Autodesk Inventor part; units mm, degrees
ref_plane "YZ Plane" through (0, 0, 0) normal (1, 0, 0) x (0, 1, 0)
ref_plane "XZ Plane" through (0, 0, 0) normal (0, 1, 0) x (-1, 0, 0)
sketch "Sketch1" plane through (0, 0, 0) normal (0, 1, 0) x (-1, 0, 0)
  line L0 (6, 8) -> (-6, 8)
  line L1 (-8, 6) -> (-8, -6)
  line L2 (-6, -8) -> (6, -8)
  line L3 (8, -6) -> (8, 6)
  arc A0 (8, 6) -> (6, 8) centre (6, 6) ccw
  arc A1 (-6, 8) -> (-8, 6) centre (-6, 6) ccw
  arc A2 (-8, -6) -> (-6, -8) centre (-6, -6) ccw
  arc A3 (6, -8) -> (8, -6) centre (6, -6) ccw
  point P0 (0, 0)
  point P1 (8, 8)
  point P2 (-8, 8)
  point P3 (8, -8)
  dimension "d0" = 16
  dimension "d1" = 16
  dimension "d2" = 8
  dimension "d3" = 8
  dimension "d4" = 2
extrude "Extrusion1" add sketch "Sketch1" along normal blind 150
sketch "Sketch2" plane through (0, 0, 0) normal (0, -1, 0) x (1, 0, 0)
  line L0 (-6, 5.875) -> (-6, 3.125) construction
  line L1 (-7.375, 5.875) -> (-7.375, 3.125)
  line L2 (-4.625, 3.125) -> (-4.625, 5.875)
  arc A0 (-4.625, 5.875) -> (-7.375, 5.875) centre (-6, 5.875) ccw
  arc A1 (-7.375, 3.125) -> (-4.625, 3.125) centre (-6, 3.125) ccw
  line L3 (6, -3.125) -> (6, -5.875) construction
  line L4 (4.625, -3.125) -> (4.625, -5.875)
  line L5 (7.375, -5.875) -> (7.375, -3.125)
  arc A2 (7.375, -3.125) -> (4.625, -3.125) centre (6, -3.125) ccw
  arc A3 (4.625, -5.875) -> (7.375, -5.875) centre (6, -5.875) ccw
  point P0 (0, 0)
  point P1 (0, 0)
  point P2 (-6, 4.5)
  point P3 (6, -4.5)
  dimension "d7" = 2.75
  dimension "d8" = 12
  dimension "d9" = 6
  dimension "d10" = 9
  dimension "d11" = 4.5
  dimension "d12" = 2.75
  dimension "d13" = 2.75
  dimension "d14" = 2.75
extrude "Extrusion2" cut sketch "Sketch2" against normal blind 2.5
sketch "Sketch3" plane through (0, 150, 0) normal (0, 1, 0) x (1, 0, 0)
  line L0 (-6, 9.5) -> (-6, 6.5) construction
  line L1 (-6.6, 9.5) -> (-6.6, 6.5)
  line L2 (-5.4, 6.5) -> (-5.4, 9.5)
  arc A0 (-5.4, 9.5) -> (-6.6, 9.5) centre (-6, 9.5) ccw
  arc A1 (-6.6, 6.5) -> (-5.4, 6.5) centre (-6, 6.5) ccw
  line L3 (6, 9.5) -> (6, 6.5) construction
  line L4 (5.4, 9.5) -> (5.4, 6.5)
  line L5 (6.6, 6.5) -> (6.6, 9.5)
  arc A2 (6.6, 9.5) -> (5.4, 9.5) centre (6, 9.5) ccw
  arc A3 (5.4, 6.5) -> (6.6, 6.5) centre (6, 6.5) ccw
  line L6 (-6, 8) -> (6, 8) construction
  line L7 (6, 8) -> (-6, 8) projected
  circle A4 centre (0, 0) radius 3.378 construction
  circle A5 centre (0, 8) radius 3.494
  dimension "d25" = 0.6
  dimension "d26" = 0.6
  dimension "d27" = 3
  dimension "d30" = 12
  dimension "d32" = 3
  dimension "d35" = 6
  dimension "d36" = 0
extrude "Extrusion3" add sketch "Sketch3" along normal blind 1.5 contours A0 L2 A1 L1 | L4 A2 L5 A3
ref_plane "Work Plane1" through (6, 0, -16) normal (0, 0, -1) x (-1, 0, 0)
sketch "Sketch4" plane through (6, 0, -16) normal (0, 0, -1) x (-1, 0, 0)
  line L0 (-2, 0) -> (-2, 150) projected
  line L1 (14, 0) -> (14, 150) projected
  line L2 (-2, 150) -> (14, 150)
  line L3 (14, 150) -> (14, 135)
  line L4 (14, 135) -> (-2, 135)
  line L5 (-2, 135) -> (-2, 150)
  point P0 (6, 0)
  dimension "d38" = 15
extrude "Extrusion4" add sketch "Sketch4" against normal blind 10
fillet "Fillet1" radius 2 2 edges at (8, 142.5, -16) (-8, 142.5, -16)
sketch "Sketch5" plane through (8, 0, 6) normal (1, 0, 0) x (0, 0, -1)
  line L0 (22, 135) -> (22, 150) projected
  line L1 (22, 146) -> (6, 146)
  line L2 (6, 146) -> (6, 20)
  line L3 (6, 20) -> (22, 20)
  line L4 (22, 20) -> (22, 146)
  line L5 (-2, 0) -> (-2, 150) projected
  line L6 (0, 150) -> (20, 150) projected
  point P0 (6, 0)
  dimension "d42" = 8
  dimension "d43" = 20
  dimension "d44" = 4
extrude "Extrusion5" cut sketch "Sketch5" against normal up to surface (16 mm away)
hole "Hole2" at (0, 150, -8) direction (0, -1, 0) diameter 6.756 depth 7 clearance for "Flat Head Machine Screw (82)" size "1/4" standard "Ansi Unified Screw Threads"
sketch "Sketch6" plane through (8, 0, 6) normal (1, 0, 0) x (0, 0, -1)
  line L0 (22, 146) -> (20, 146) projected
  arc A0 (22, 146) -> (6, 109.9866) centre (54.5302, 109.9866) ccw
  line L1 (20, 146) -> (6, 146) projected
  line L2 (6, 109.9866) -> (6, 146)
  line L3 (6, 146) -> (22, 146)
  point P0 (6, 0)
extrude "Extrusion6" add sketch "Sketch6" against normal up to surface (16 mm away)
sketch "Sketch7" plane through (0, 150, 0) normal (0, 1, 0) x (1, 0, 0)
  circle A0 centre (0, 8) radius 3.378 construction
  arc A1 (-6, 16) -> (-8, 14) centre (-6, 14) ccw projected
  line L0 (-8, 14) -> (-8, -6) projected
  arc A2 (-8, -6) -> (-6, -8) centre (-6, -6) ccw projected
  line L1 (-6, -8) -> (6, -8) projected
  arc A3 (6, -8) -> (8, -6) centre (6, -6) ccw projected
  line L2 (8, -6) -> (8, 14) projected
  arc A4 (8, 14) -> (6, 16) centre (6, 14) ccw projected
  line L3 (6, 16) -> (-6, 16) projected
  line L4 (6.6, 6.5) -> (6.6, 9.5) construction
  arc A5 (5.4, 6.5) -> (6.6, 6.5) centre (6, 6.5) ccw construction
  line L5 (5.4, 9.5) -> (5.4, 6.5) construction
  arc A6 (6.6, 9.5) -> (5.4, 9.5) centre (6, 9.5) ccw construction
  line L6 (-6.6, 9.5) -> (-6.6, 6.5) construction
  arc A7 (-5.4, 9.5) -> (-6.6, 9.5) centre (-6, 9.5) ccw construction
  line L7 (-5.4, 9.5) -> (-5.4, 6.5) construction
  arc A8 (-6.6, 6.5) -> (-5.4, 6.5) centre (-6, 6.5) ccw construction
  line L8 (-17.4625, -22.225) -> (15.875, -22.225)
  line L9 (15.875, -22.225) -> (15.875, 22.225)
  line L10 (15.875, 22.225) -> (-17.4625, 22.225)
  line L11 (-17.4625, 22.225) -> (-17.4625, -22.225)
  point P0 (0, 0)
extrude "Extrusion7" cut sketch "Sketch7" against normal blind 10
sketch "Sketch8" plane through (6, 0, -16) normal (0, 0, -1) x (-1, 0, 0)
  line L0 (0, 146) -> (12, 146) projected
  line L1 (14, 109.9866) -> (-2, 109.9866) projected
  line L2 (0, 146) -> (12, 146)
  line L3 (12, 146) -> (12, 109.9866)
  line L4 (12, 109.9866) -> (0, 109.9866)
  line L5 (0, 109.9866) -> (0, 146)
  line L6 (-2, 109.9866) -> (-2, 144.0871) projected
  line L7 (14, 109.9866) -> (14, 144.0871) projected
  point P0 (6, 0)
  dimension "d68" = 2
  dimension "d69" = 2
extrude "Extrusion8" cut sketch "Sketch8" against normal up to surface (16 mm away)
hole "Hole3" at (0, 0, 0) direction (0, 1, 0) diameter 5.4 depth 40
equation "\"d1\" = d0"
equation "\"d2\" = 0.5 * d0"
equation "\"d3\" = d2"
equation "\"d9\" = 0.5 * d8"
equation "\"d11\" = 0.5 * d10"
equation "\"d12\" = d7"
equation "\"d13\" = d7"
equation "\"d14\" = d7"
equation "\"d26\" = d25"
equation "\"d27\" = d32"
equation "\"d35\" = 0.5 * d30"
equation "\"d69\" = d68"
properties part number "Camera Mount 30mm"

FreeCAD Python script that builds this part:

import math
import FreeCAD as App
import Part
import Sketcher

V = App.Vector


def edges_at(feature, points):
    """Names of the edges that pass closest to the given points."""
    edges = feature.Shape.Edges
    near = lambda p: min(range(len(edges)), key=lambda i: edges[i].distToShape(Part.Vertex(*p))[0])
    return sorted({f"Edge{near(p) + 1}" for p in points})

doc = App.newDocument("Part")
params = doc.addObject("Spreadsheet::Sheet", "Params")
for row, (alias, value) in enumerate([
    ("sketch1_radius", "2 mm"),
    ("pad1_length", "150 mm"),
    ("sketch2_height", "2.75 mm"),
    ("pocket1_length", "2.5 mm"),
    ("sketch3_radius", "0.6 mm"),
    ("sketch3_height", "3 mm"),
    ("pad2_length", "1.5 mm"),
    ("sketch4_height", "15 mm"),
    ("sketch4_width", "16 mm"),
    ("pad3_length", "10 mm"),
    ("fillet_radius", "2 mm"),
    ("sketch5_width", "126 mm"),
    ("sketch5_height", "16 mm"),
    ("pocket2_length", "16 mm"),
    ("hole_diameter", "6.756 mm"),
    ("hole_depth", "7 mm"),
    ("sketch7_height", "16 mm"),
    ("pad4_length", "16 mm"),
    ("sketch8_radius", "2 mm"),
    ("sketch8_width", "12 mm"),
    ("sketch8_height", "20 mm"),
    ("sketch8_height2", "44.45 mm"),
    ("pocket3_length", "10 mm"),
    ("sketch9_width", "12 mm"),
    ("pocket4_length", "16 mm"),
    ("sketch10_diameter", "5.4 mm"),
    ("hole2_diameter", "5.4 mm"),
    ("hole2_depth", "40 mm"),
], start=1):
    params.set(f"A{row}", alias)
    params.set(f"B{row}", "=" + value)
    params.setAlias(f"B{row}", alias)

body = doc.addObject("PartDesign::Body", "Body")

sketch1 = body.newObject("Sketcher::SketchObject", "Sketch")
sketch1.AttachmentSupport = (doc.getObject("XZ_Plane"), [""])
sketch1.MapMode = "FlatFace"
sketch1.addGeometry([
    Part.ArcOfCircle(Part.Circle(V(-6, 6, 0), V(0, 0, 1), 2), math.radians(90), math.radians(180)),
    Part.LineSegment(V(-6, 8, 0), V(6, 8, 0)),
    Part.ArcOfCircle(Part.Circle(V(6, 6, 0), V(0, 0, 1), 2), math.radians(0), math.radians(90)),
    Part.LineSegment(V(8, 6, 0), V(8, -6, 0)),
    Part.ArcOfCircle(Part.Circle(V(6, -6, 0), V(0, 0, 1), 2), math.radians(-90), math.radians(0)),
    Part.LineSegment(V(6, -8, 0), V(-6, -8, 0)),
    Part.ArcOfCircle(Part.Circle(V(-6, -6, 0), V(0, 0, 1), 2), math.radians(180), math.radians(270)),
    Part.LineSegment(V(-8, -6, 0), V(-8, 6, 0)),
], False)
sketch1.addConstraint([
    Sketcher.Constraint("Tangent", 0, 1, 1, 1),
    Sketcher.Constraint("Tangent", 1, 2, 2, 2),
    Sketcher.Constraint("Tangent", 2, 1, 3, 1),
    Sketcher.Constraint("Tangent", 3, 2, 4, 2),
    Sketcher.Constraint("Tangent", 4, 1, 5, 1),
    Sketcher.Constraint("Tangent", 5, 2, 6, 2),
    Sketcher.Constraint("Tangent", 6, 1, 7, 1),
    Sketcher.Constraint("Tangent", 7, 2, 0, 2),
    Sketcher.Constraint("Horizontal", 1),
    Sketcher.Constraint("Vertical", 3),
    Sketcher.Constraint("Horizontal", 5),
    Sketcher.Constraint("Vertical", 7),
    Sketcher.Constraint("Equal", 0, 2),
    Sketcher.Constraint("Equal", 2, 4),
    Sketcher.Constraint("Equal", 4, 6),
    Sketcher.Constraint("Symmetric", 0, 3, 4, 3, -1, 1),
    Sketcher.Constraint("Equal", 5, 3),
    Sketcher.Constraint("Radius", 0, 2.0),
    Sketcher.Constraint("DistanceY", -1, 1, 0, 1, 8.0),
])
sketch1.setExpression("Constraints[17]", "Params.sketch1_radius")
pad1 = body.newObject("PartDesign::Pad", "Pad")
pad1.Profile = sketch1
pad1.setExpression("Length", "Params.pad1_length")
pad1.Reversed = True

sketch2 = body.newObject("Sketcher::SketchObject", "Sketch001")
sketch2.AttachmentSupport = (doc.getObject("XZ_Plane"), [""])
sketch2.MapMode = "FlatFace"
sketch2.addGeometry([
    Part.ArcOfCircle(Part.Circle(V(-6, 5.9, 0), V(0, 0, 1), 1.4), math.radians(0), math.radians(180)),
    Part.LineSegment(V(-7.4, 5.9, 0), V(-7.4, 3.1, 0)),
    Part.ArcOfCircle(Part.Circle(V(-6, 3.1, 0), V(0, 0, 1), 1.4), math.radians(180), math.radians(360)),
    Part.LineSegment(V(-4.6, 3.1, 0), V(-4.6, 5.9, 0)),
    Part.ArcOfCircle(Part.Circle(V(6, -3.1, 0), V(0, 0, 1), 1.4), math.radians(0), math.radians(180)),
    Part.LineSegment(V(4.6, -3.1, 0), V(4.6, -5.9, 0)),
    Part.ArcOfCircle(Part.Circle(V(6, -5.9, 0), V(0, 0, 1), 1.4), math.radians(180), math.radians(360)),
    Part.LineSegment(V(7.4, -5.9, 0), V(7.4, -3.1, 0)),
], False)
sketch2.addConstraint([
    Sketcher.Constraint("Tangent", 0, 2, 1, 1),
    Sketcher.Constraint("Tangent", 1, 2, 2, 1),
    Sketcher.Constraint("Tangent", 2, 2, 3, 1),
    Sketcher.Constraint("Tangent", 3, 2, 0, 1),
    Sketcher.Constraint("Tangent", 4, 2, 5, 1),
    Sketcher.Constraint("Tangent", 5, 2, 6, 1),
    Sketcher.Constraint("Tangent", 6, 2, 7, 1),
    Sketcher.Constraint("Tangent", 7, 2, 4, 1),
    Sketcher.Constraint("Vertical", 1),
    Sketcher.Constraint("Vertical", 3),
    Sketcher.Constraint("Vertical", 5),
    Sketcher.Constraint("Vertical", 7),
    Sketcher.Constraint("Equal", 2, 4),
    Sketcher.Constraint("Symmetric", 2, 3, 4, 3, -1, 1),
    Sketcher.Constraint("Equal", 3, 5),
    Sketcher.Constraint("DistanceX", 0, 3, -1, 1, 6.0),
    Sketcher.Constraint("Radius", 0, 1.375),
    Sketcher.Constraint("DistanceY", 4, 3, 0, 3, 9.0),
    Sketcher.Constraint("DistanceY", 1, 2, 1, 1, 2.75),
])
sketch2.setExpression("Constraints[18]", "Params.sketch2_height")
pocket1 = body.newObject("PartDesign::Pocket", "Pocket")
pocket1.Profile = sketch2
pocket1.setExpression("Length", "Params.pocket1_length")

sketch3 = body.newObject("Sketcher::SketchObject", "Sketch002")
sketch3.AttachmentSupport = (doc.getObject("XZ_Plane"), [""])
sketch3.MapMode = "FlatFace"
sketch3.AttachmentOffset = App.Placement(V(0, 0, -150), App.Rotation())
sketch3.addGeometry([
    Part.ArcOfCircle(Part.Circle(V(-6, -9.5, 0), V(0, 0, 1), 0.6), math.radians(180), math.radians(360)),
    Part.LineSegment(V(-6.6, -9.5, 0), V(-6.6, -6.5, 0)),
    Part.ArcOfCircle(Part.Circle(V(-6, -6.5, 0), V(0, 0, 1), 0.6), math.radians(0), math.radians(180)),
    Part.LineSegment(V(-5.4, -6.5, 0), V(-5.4, -9.5, 0)),
    Part.LineSegment(V(5.4, -9.5, 0), V(5.4, -6.5, 0)),
    Part.ArcOfCircle(Part.Circle(V(6, -6.5, 0), V(0, 0, 1), 0.6), math.radians(0), math.radians(180)),
    Part.LineSegment(V(6.6, -6.5, 0), V(6.6, -9.5, 0)),
    Part.ArcOfCircle(Part.Circle(V(6, -9.5, 0), V(0, 0, 1), 0.6), math.radians(180), math.radians(360)),
], False)
sketch3.addConstraint([
    Sketcher.Constraint("Tangent", 0, 1, 1, 1),
    Sketcher.Constraint("Tangent", 1, 2, 2, 2),
    Sketcher.Constraint("Tangent", 2, 1, 3, 1),
    Sketcher.Constraint("Tangent", 3, 2, 0, 2),
    Sketcher.Constraint("Tangent", 4, 2, 5, 2),
    Sketcher.Constraint("Tangent", 5, 1, 6, 1),
    Sketcher.Constraint("Tangent", 6, 2, 7, 2),
    Sketcher.Constraint("Tangent", 7, 1, 4, 1),
    Sketcher.Constraint("Vertical", 1),
    Sketcher.Constraint("Vertical", 3),
    Sketcher.Constraint("Vertical", 4),
    Sketcher.Constraint("Vertical", 6),
    Sketcher.Constraint("Equal", 2, 5),
    Sketcher.Constraint("Symmetric", 2, 3, 5, 3, -2),
    Sketcher.Constraint("Horizontal", 0, 3, 7, 3),
    Sketcher.Constraint("Radius", 0, 0.6),
    Sketcher.Constraint("DistanceY", 1, 1, 1, 2, 3.0),
    Sketcher.Constraint("DistanceX", 0, 3, -1, 1, 6.0),
    Sketcher.Constraint("DistanceY", 0, 3, -1, 1, 9.5),
])
sketch3.setExpression("Constraints[15]", "Params.sketch3_radius")
sketch3.setExpression("Constraints[16]", "Params.sketch3_height")
pad2 = body.newObject("PartDesign::Pad", "Pad001")
pad2.Profile = sketch3
pad2.setExpression("Length", "Params.pad2_length")
pad2.Reversed = True

sketch4 = body.newObject("Sketcher::SketchObject", "Sketch003")
sketch4.AttachmentSupport = (doc.getObject("XY_Plane"), [""])
sketch4.MapMode = "FlatFace"
sketch4.AttachmentOffset = App.Placement(V(0, 0, -16), App.Rotation())
sketch4.addGeometry([
    Part.LineSegment(V(8, 150, 0), V(8, 135, 0)),
    Part.LineSegment(V(8, 135, 0), V(-8, 135, 0)),
    Part.LineSegment(V(-8, 135, 0), V(-8, 150, 0)),
    Part.LineSegment(V(-8, 150, 0), V(8, 150, 0)),
], False)
sketch4.addConstraint([
    Sketcher.Constraint("Coincident", 0, 2, 1, 1),
    Sketcher.Constraint("Coincident", 1, 2, 2, 1),
    Sketcher.Constraint("Coincident", 2, 2, 3, 1),
    Sketcher.Constraint("Coincident", 3, 2, 0, 1),
    Sketcher.Constraint("Vertical", 0),
    Sketcher.Constraint("Horizontal", 1),
    Sketcher.Constraint("Vertical", 2),
    Sketcher.Constraint("Horizontal", 3),
    Sketcher.Constraint("DistanceY", 0, 2, 0, 1, 15.0),
    Sketcher.Constraint("DistanceX", 1, 2, 1, 1, 16.0),
    Sketcher.Constraint("DistanceX", -1, 1, 0, 2, 8.0),
    Sketcher.Constraint("DistanceY", -1, 1, 0, 2, 135.0),
])
sketch4.setExpression("Constraints[8]", "Params.sketch4_height")
sketch4.setExpression("Constraints[9]", "Params.sketch4_width")
pad3 = body.newObject("PartDesign::Pad", "Pad002")
pad3.Profile = sketch4
pad3.setExpression("Length", "Params.pad3_length")
doc.recompute()

fillet = body.newObject("PartDesign::Fillet", "Fillet")
fillet.Base = (pad3, edges_at(pad3, [(8, 142.5, -16), (-8, 142.5, -16)]))
fillet.setExpression("Radius", "Params.fillet_radius")

sketch5 = body.newObject("Sketcher::SketchObject", "Sketch004")
sketch5.AttachmentSupport = (doc.getObject("YZ_Plane"), [""])
sketch5.MapMode = "FlatFace"
sketch5.AttachmentOffset = App.Placement(V(0, 0, 8), App.Rotation())
sketch5.addGeometry([
    Part.LineSegment(V(20, -16, 0), V(146, -16, 0)),
    Part.LineSegment(V(146, -16, 0), V(146, 0, 0)),
    Part.LineSegment(V(146, 0, 0), V(20, 0, 0)),
    Part.LineSegment(V(20, 0, 0), V(20, -16, 0)),
], False)
sketch5.addConstraint([
    Sketcher.Constraint("Coincident", 0, 2, 1, 1),
    Sketcher.Constraint("Coincident", 1, 2, 2, 1),
    Sketcher.Constraint("Coincident", 2, 2, 3, 1),
    Sketcher.Constraint("Coincident", 3, 2, 0, 1),
    Sketcher.Constraint("Horizontal", 0),
    Sketcher.Constraint("Vertical", 1),
    Sketcher.Constraint("Horizontal", 2),
    Sketcher.Constraint("Vertical", 3),
    Sketcher.Constraint("PointOnObject", 1, 2, -1),
    Sketcher.Constraint("DistanceX", -1, 1, 2, 2, 20.0),
    Sketcher.Constraint("DistanceX", 0, 1, 0, 2, 126.0),
    Sketcher.Constraint("DistanceY", 1, 1, 1, 2, 16.0),
])
sketch5.setExpression("Constraints[10]", "Params.sketch5_width")
sketch5.setExpression("Constraints[11]", "Params.sketch5_height")
pocket2 = body.newObject("PartDesign::Pocket", "Pocket001")
pocket2.Profile = sketch5
pocket2.setExpression("Length", "Params.pocket2_length")

sketch6 = body.newObject("Sketcher::SketchObject", "Sketch005")
sketch6.AttachmentSupport = (doc.getObject("XZ_Plane"), [""])
sketch6.MapMode = "FlatFace"
sketch6.AttachmentOffset = App.Placement(V(0, 0, -150), App.Rotation())
sketch6.addGeometry(Part.Circle(V(0, -8, 0), V(0, 0, 1), 3.4), False)
sketch6.addConstraint([
    Sketcher.Constraint("PointOnObject", 0, 3, -2),
    Sketcher.Constraint("Diameter", 0, 6.756),
    Sketcher.Constraint("DistanceY", 0, 3, -1, 1, 8.0),
])
doc.recompute()
hole = body.newObject("PartDesign::Hole", "Hole")
hole.Profile = sketch6
hole.ThreadType = "None"
hole.setExpression("Diameter", "Params.hole_diameter")
hole.DepthType = "Dimension"
hole.setExpression("Depth", "Params.hole_depth")
hole.DrillPoint = "Flat"
hole.Reversed = True

sketch7 = body.newObject("Sketcher::SketchObject", "Sketch006")
sketch7.AttachmentSupport = (doc.getObject("YZ_Plane"), [""])
sketch7.MapMode = "FlatFace"
sketch7.AttachmentOffset = App.Placement(V(0, 0, 8), App.Rotation())
sketch7.addGeometry([
    Part.ArcOfCircle(Part.Circle(V(110, -49, 0), V(0, 0, 1), 49), math.radians(42), math.radians(90)),
    Part.LineSegment(V(146, -16, 0), V(146, 0, 0)),
    Part.LineSegment(V(146, 0, 0), V(110, 0, 0)),
], False)
sketch7.addConstraint([
    Sketcher.Constraint("Coincident", 0, 1, 1, 1),
    Sketcher.Constraint("Coincident", 1, 2, 2, 1),
    Sketcher.Constraint("Tangent", 2, 2, 0, 2),
    Sketcher.Constraint("Vertical", 1),
    Sketcher.Constraint("Horizontal", 2),
    Sketcher.Constraint("PointOnObject", 1, 2, -1),
    Sketcher.Constraint("DistanceY", 1, 1, 1, 2, 16.0),
    Sketcher.Constraint("DistanceX", -1, 1, 0, 1, 146.0),
    Sketcher.Constraint("Radius", 0, 48.5302),
])
sketch7.setExpression("Constraints[6]", "Params.sketch7_height")
pad4 = body.newObject("PartDesign::Pad", "Pad003")
pad4.Profile = sketch7
pad4.setExpression("Length", "Params.pad4_length")
pad4.Reversed = True

sketch8 = body.newObject("Sketcher::SketchObject", "Sketch007")
sketch8.AttachmentSupport = (doc.getObject("XZ_Plane"), [""])
sketch8.MapMode = "FlatFace"
sketch8.AttachmentOffset = App.Placement(V(0, 0, -150), App.Rotation())
sketch8.addGeometry([
    Part.LineSegment(V(-17.5, -22.2, 0), V(-17.5, 22.2, 0)),
    Part.LineSegment(V(-17.5, 22.2, 0), V(15.9, 22.2, 0)),
    Part.LineSegment(V(15.9, 22.2, 0), V(15.9, -22.2, 0)),
    Part.LineSegment(V(15.9, -22.2, 0), V(-17.5, -22.2, 0)),
    Part.ArcOfCircle(Part.Circle(V(-6, -14, 0), V(0, 0, 1), 2), math.radians(180), math.radians(270)),
    Part.LineSegment(V(-6, -16, 0), V(6, -16, 0)),
    Part.ArcOfCircle(Part.Circle(V(6, -14, 0), V(0, 0, 1), 2), math.radians(-90), math.radians(0)),
    Part.LineSegment(V(8, -14, 0), V(8, 6, 0)),
    Part.ArcOfCircle(Part.Circle(V(6, 6, 0), V(0, 0, 1), 2), math.radians(0), math.radians(90)),
    Part.LineSegment(V(6, 8, 0), V(-6, 8, 0)),
    Part.ArcOfCircle(Part.Circle(V(-6, 6, 0), V(0, 0, 1), 2), math.radians(90), math.radians(180)),
    Part.LineSegment(V(-8, 6, 0), V(-8, -14, 0)),
], False)
sketch8.addConstraint([
    Sketcher.Constraint("Coincident", 0, 2, 1, 1),
    Sketcher.Constraint("Coincident", 1, 2, 2, 1),
    Sketcher.Constraint("Coincident", 2, 2, 3, 1),
    Sketcher.Constraint("Coincident", 3, 2, 0, 1),
    Sketcher.Constraint("Tangent", 4, 2, 5, 1),
    Sketcher.Constraint("Tangent", 5, 2, 6, 1),
    Sketcher.Constraint("Tangent", 6, 2, 7, 1),
    Sketcher.Constraint("Tangent", 7, 2, 8, 1),
    Sketcher.Constraint("Tangent", 8, 2, 9, 1),
    Sketcher.Constraint("Tangent", 9, 2, 10, 1),
    Sketcher.Constraint("Tangent", 10, 2, 11, 1),
    Sketcher.Constraint("Tangent", 11, 2, 4, 1),
    Sketcher.Constraint("Vertical", 0),
    Sketcher.Constraint("Horizontal", 1),
    Sketcher.Constraint("Vertical", 2),
    Sketcher.Constraint("Horizontal", 3),
    Sketcher.Constraint("Horizontal", 5),
    Sketcher.Constraint("Vertical", 7),
    Sketcher.Constraint("Horizontal", 9),
    Sketcher.Constraint("Vertical", 11),
    Sketcher.Constraint("Equal", 4, 6),
    Sketcher.Constraint("Equal", 6, 8),
    Sketcher.Constraint("Equal", 8, 10),
    Sketcher.Constraint("Radius", 4, 2.0),
    Sketcher.Constraint("DistanceX", 5, 1, 5, 2, 12.0),
    Sketcher.Constraint("DistanceY", 7, 1, 7, 2, 20.0),
    Sketcher.Constraint("DistanceX", 4, 3, -1, 1, 6.0),
    Sketcher.Constraint("DistanceY", 4, 3, -1, 1, 14.0),
    Sketcher.Constraint("DistanceY", 0, 1, 0, 2, 44.45),
    Sketcher.Constraint("DistanceX", 1, 1, 1, 2, 33.3375),
    Sketcher.Constraint("DistanceY", -1, 1, 0, 2, 22.225),
    Sketcher.Constraint("DistanceX", -1, 1, 1, 2, 15.875),
])
sketch8.setExpression("Constraints[23]", "Params.sketch8_radius")
sketch8.setExpression("Constraints[24]", "Params.sketch8_width")
sketch8.setExpression("Constraints[25]", "Params.sketch8_height")
sketch8.setExpression("Constraints[28]", "Params.sketch8_height2")
pocket3 = body.newObject("PartDesign::Pocket", "Pocket002")
pocket3.Profile = sketch8
pocket3.setExpression("Length", "Params.pocket3_length")
pocket3.Reversed = True

sketch9 = body.newObject("Sketcher::SketchObject", "Sketch008")
sketch9.AttachmentSupport = (doc.getObject("XY_Plane"), [""])
sketch9.MapMode = "FlatFace"
sketch9.AttachmentOffset = App.Placement(V(0, 0, -16), App.Rotation())
sketch9.addGeometry([
    Part.LineSegment(V(-6, 146, 0), V(6, 146, 0)),
    Part.LineSegment(V(6, 146, 0), V(6, 110, 0)),
    Part.LineSegment(V(6, 110, 0), V(-6, 110, 0)),
    Part.LineSegment(V(-6, 110, 0), V(-6, 146, 0)),
], False)
sketch9.addConstraint([
    Sketcher.Constraint("Coincident", 0, 2, 1, 1),
    Sketcher.Constraint("Coincident", 1, 2, 2, 1),
    Sketcher.Constraint("Coincident", 2, 2, 3, 1),
    Sketcher.Constraint("Coincident", 3, 2, 0, 1),
    Sketcher.Constraint("Horizontal", 0),
    Sketcher.Constraint("Vertical", 1),
    Sketcher.Constraint("Horizontal", 2),
    Sketcher.Constraint("Vertical", 3),
    Sketcher.Constraint("DistanceX", 0, 1, 0, 2, 12.0),
    Sketcher.Constraint("DistanceX", -1, 1, 0, 2, 6.0),
    Sketcher.Constraint("DistanceY", -1, 1, 0, 2, 146.0),
    Sketcher.Constraint("DistanceY", 1, 2, 1, 1, 36.0134),
])
sketch9.setExpression("Constraints[8]", "Params.sketch9_width")
pocket4 = body.newObject("PartDesign::Pocket", "Pocket003")
pocket4.Profile = sketch9
pocket4.setExpression("Length", "Params.pocket4_length")
pocket4.Reversed = True

sketch10 = body.newObject("Sketcher::SketchObject", "Sketch009")
sketch10.AttachmentSupport = (doc.getObject("XZ_Plane"), [""])
sketch10.MapMode = "FlatFace"
sketch10.addGeometry(Part.Circle(V(0, 0, 0), V(0, 0, 1), 2.7), False)
sketch10.addConstraint([
    Sketcher.Constraint("Coincident", 0, 3, -1, 1),
    Sketcher.Constraint("Diameter", 0, 5.4),
])
sketch10.setExpression("Constraints[1]", "Params.sketch10_diameter")
doc.recompute()
hole2 = body.newObject("PartDesign::Hole", "Hole001")
hole2.Profile = sketch10
hole2.ThreadType = "None"
hole2.setExpression("Diameter", "Params.hole2_diameter")
hole2.DepthType = "Dimension"
hole2.setExpression("Depth", "Params.hole2_depth")
hole2.DrillPoint = "Flat"

doc.recompute()
